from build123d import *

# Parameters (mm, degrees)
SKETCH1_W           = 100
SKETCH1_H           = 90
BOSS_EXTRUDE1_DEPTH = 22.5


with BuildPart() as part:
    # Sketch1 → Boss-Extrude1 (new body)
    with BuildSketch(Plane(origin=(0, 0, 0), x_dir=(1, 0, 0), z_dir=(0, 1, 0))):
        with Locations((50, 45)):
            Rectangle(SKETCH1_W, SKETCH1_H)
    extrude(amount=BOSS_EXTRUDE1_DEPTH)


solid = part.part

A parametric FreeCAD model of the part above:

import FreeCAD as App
import Part
import Sketcher
Q = App.Units.Quantity

doc = App.newDocument("Part")
params = doc.addObject("Spreadsheet::Sheet", "Params")
for row, (alias, value) in enumerate([
    ("sketch1_width", "100 mm"),
    ("sketch1_height", "90 mm"),
    ("pad1_length", "22.5 mm"),
], start=1):
    params.set(f"A{row}", alias)
    params.set(f"B{row}", "=" + value)
    params.setAlias(f"B{row}", alias)

body = doc.addObject("PartDesign::Body", "Body")

# Sketch on XZ plane
sketch1 = body.newObject("Sketcher::SketchObject", "Sketch")
sketch1.AttachmentSupport = (doc.getObject("XZ_Plane"), [""])
sketch1.MapMode = "FlatFace"
sketch1.addGeometry([
    Part.LineSegment(App.Vector(0, -90, 0), App.Vector(0, 0, 0)),
    Part.LineSegment(App.Vector(0, 0, 0), App.Vector(100, 0, 0)),
    Part.LineSegment(App.Vector(100, 0, 0), App.Vector(100, -90, 0)),
    Part.LineSegment(App.Vector(100, -90, 0), App.Vector(0, -90, 0)),
], False)
sketch1.addConstraint([
    Sketcher.Constraint("Coincident", 0, 2, 1, 1),
    Sketcher.Constraint("Coincident", 1, 2, 2, 1),
    Sketcher.Constraint("Coincident", 2, 2, 3, 1),
    Sketcher.Constraint("Coincident", 3, 2, 0, 1),
    Sketcher.Constraint("Vertical", 0),
    Sketcher.Constraint("Horizontal", 1),
    Sketcher.Constraint("Vertical", 2),
    Sketcher.Constraint("Horizontal", 3),
    Sketcher.Constraint("Coincident", 0, 2, -1, 1),
    Sketcher.Constraint("DistanceX", 1, 1, 1, 2, Q("100 mm")),
    Sketcher.Constraint("DistanceY", 0, 1, 0, 2, Q("90 mm")),
])
sketch1.setExpression("Constraints[9]", "Params.sketch1_width")
sketch1.setExpression("Constraints[10]", "Params.sketch1_height")
pad1 = body.newObject("PartDesign::Pad", "Pad")
pad1.Profile = sketch1
pad1.setExpression("Length", "Params.pad1_length")
pad1.Reversed = True

doc.recompute()
